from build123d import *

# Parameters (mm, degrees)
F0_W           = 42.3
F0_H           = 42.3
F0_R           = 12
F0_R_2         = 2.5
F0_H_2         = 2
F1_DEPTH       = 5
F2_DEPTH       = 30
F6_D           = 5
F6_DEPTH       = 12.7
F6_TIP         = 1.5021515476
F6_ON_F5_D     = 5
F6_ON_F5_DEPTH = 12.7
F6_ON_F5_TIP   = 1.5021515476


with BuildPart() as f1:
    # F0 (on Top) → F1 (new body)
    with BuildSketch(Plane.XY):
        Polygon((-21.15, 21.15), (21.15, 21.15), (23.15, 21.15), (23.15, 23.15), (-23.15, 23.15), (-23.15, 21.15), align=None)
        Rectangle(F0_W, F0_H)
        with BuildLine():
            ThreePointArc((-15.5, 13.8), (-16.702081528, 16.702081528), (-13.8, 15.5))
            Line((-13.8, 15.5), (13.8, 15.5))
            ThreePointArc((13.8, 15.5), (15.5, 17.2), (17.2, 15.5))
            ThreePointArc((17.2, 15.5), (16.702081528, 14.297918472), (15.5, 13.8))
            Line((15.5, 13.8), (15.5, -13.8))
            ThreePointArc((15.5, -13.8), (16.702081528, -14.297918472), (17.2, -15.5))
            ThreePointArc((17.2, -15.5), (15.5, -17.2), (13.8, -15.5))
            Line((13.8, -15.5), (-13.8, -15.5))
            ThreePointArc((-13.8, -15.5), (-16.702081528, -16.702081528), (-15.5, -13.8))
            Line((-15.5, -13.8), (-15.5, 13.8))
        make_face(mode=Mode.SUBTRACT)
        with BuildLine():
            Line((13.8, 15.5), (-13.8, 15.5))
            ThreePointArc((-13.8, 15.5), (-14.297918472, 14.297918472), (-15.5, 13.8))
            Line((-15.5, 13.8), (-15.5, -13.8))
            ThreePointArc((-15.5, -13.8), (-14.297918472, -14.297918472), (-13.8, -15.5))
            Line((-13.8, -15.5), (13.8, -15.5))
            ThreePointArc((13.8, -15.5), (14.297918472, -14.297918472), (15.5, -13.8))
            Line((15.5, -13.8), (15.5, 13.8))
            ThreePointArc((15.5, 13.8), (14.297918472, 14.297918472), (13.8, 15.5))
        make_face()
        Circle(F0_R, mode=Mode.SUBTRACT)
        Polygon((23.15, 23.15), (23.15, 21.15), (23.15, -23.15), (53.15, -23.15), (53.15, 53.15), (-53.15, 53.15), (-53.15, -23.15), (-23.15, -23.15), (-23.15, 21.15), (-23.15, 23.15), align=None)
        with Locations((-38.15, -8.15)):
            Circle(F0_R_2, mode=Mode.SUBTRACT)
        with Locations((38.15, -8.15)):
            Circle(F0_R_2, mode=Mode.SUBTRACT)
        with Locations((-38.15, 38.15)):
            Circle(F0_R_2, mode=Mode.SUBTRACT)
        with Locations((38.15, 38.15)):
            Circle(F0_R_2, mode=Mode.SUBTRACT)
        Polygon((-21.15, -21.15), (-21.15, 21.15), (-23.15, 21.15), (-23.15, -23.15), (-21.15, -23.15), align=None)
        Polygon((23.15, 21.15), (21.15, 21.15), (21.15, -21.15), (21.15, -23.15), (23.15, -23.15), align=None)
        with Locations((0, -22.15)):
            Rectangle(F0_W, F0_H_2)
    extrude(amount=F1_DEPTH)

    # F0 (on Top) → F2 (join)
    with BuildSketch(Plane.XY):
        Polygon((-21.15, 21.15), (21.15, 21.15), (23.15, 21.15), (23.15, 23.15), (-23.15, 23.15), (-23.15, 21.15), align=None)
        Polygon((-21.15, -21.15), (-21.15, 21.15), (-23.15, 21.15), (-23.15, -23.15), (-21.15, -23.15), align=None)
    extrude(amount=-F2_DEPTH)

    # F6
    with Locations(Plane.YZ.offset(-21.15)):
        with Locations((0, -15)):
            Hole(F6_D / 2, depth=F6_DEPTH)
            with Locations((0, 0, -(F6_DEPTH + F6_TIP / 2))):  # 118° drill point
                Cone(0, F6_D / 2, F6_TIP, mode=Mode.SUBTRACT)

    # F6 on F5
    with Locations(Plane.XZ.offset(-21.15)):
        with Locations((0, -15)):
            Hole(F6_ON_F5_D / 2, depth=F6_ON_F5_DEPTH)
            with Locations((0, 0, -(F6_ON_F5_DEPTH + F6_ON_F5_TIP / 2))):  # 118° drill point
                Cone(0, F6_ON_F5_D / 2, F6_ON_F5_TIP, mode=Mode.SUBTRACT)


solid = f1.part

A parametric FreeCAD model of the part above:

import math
import FreeCAD as App
import Part
import Sketcher


def add_polygon(sketch, points):
    """Adds a closed chain of lines whose ends are joined by coincident constraints."""
    first, n = sketch.GeometryCount, len(points)
    for a, b in zip(points, points[1:] + points[:1]):
        sketch.addGeometry(Part.LineSegment(App.Vector(*a, 0), App.Vector(*b, 0)), False)
    for i in range(n):
        sketch.addConstraint(Sketcher.Constraint("Coincident", first + i, 2, first + (i + 1) % n, 1))

doc = App.newDocument("Part")
body = doc.addObject("PartDesign::Body", "Body")

sketch1 = body.newObject("Sketcher::SketchObject", "Sketch")
sketch1.AttachmentSupport = (doc.getObject("XY_Plane"), [""])
sketch1.MapMode = "FlatFace"
add_polygon(sketch1, [(53.15, -23.15), (53.15, 53.15), (-53.15, 53.15), (-53.15, -23.15)])
sketch1.addGeometry(Part.Circle(App.Vector(-38.15, -8.15, 0), App.Vector(0, 0, 1), 2.5), False)
sketch1.addGeometry(Part.ArcOfCircle(Part.Circle(App.Vector(-15.5, -15.5, 0), App.Vector(0, 0, 1), 1.7), math.radians(90), math.radians(360)), False)
sketch1.addGeometry(Part.ArcOfCircle(Part.Circle(App.Vector(-15.5, -15.5, 0), App.Vector(0, 0, 1), 1.7), math.radians(0), math.radians(90)), False)
sketch1.addGeometry(Part.ArcOfCircle(Part.Circle(App.Vector(15.5, -15.5, 0), App.Vector(0, 0, 1), 1.7), math.radians(180), math.radians(360)), False)
sketch1.addGeometry(Part.ArcOfCircle(Part.Circle(App.Vector(15.5, -15.5, 0), App.Vector(0, 0, 1), 1.7), math.radians(90), math.radians(180)), False)
sketch1.addGeometry(Part.ArcOfCircle(Part.Circle(App.Vector(15.5, -15.5, 0), App.Vector(0, 0, 1), 1.7), math.radians(0), math.radians(90)), False)
sketch1.addGeometry(Part.Circle(App.Vector(38.15, -8.15, 0), App.Vector(0, 0, 1), 2.5), False)
sketch1.addGeometry(Part.Circle(App.Vector(0, 0, 0), App.Vector(0, 0, 1), 12), False)
sketch1.addGeometry(Part.ArcOfCircle(Part.Circle(App.Vector(-15.5, 15.5, 0), App.Vector(0, 0, 1), 1.7), math.radians(0), math.radians(270)), False)
sketch1.addGeometry(Part.ArcOfCircle(Part.Circle(App.Vector(-15.5, 15.5, 0), App.Vector(0, 0, 1), 1.7), math.radians(-90), math.radians(0)), False)
sketch1.addGeometry(Part.Circle(App.Vector(-38.15, 38.15, 0), App.Vector(0, 0, 1), 2.5), False)
sketch1.addGeometry(Part.ArcOfCircle(Part.Circle(App.Vector(15.5, 15.5, 0), App.Vector(0, 0, 1), 1.7), math.radians(-90), math.radians(0)), False)
sketch1.addGeometry(Part.ArcOfCircle(Part.Circle(App.Vector(15.5, 15.5, 0), App.Vector(0, 0, 1), 1.7), math.radians(180), math.radians(270)), False)
sketch1.addGeometry(Part.ArcOfCircle(Part.Circle(App.Vector(15.5, 15.5, 0), App.Vector(0, 0, 1), 1.7), math.radians(0), math.radians(180)), False)
sketch1.addGeometry(Part.Circle(App.Vector(38.15, 38.15, 0), App.Vector(0, 0, 1), 2.5), False)
sketch1.addConstraint([
    Sketcher.Constraint("Tangent", 5, 1, 6, 2),
    Sketcher.Constraint("Coincident", 6, 1, 5, 2),
    Sketcher.Constraint("Tangent", 7, 1, 8, 2),
    Sketcher.Constraint("Tangent", 8, 1, 9, 2),
    Sketcher.Constraint("Tangent", 9, 1, 7, 2),
    Sketcher.Constraint("Tangent", 12, 1, 13, 2),
    Sketcher.Constraint("Coincident", 13, 1, 12, 2),
    Sketcher.Constraint("Tangent", 15, 1, 16, 2),
    Sketcher.Constraint("Tangent", 16, 1, 17, 2),
    Sketcher.Constraint("Tangent", 17, 1, 15, 2),
    Sketcher.Constraint("Vertical", 0),
    Sketcher.Constraint("Horizontal", 1),
    Sketcher.Constraint("Vertical", 2),
    Sketcher.Constraint("Horizontal", 3),
    Sketcher.Constraint("Coincident", 11, 3, -1, 1),
    Sketcher.Constraint("Equal", 6, 7),
    Sketcher.Constraint("Equal", 4, 10),
    Sketcher.Constraint("Equal", 9, 12),
    Sketcher.Constraint("Equal", 10, 14),
    Sketcher.Constraint("Equal", 13, 15),
    Sketcher.Constraint("Equal", 14, 18),
    Sketcher.Constraint("Symmetric", 7, 3, 12, 3, -1, 1),
    Sketcher.Constraint("Symmetric", 5, 3, 15, 3, -1, 1),
    Sketcher.Constraint("Symmetric", 5, 3, 7, 3, -2),
    Sketcher.Constraint("Symmetric", 4, 3, 10, 3, -2),
    Sketcher.Constraint("Symmetric", 14, 3, 18, 3, -2),
    Sketcher.Constraint("Horizontal", 9, 3, 6, 1),
    Sketcher.Constraint("Horizontal", 6, 1, 7, 1),
    Sketcher.Constraint("Horizontal", 7, 1, 9, 1),
    Sketcher.Constraint("Horizontal", 17, 3, 12, 1),
    Sketcher.Constraint("Horizontal", 12, 1, 16, 1),
    Sketcher.Constraint("Horizontal", 16, 1, 17, 1),
    Sketcher.Constraint("Vertical", 4, 3, 14, 3),
    Sketcher.Constraint("Vertical", 13, 3, 5, 1),
    Sketcher.Constraint("Vertical", 17, 3, 8, 1),
    Sketcher.Constraint("Vertical", 5, 1, 13, 1),
    Sketcher.Constraint("Vertical", 8, 1, 15, 1),
    Sketcher.Constraint("Diameter", 4, 5.0),
    Sketcher.Constraint("Diameter", 11, 24.0),
    Sketcher.Constraint("Radius", 5, 1.7),
    Sketcher.Constraint("DistanceX", 1, 2, 1, 1, 106.3),
    Sketcher.Constraint("DistanceY", 0, 1, 0, 2, 76.3),
    Sketcher.Constraint("DistanceX", 5, 3, 7, 3, 31.0),
    Sketcher.Constraint("DistanceY", 5, 3, 12, 3, 31.0),
    Sketcher.Constraint("DistanceX", 18, 3, 0, 2, 15.0),
    Sketcher.Constraint("DistanceY", 18, 3, 0, 2, 15.0),
    Sketcher.Constraint("DistanceX", 1, 2, 14, 3, 15.0),
    Sketcher.Constraint("DistanceY", 2, 2, 4, 3, 15.0),
    Sketcher.Constraint("DistanceY", 4, 3, -1, 1, 8.15),
])
pad1 = body.newObject("PartDesign::Pad", "Pad")
pad1.Profile = sketch1
pad1.Length = 5

sketch2 = body.newObject("Sketcher::SketchObject", "Sketch001")
sketch2.AttachmentSupport = (doc.getObject("XY_Plane"), [""])
sketch2.MapMode = "FlatFace"
add_polygon(sketch2, [(23.15, 21.15), (23.15, 23.15), (-23.15, 23.15), (-23.15, -23.15), (-21.15, -23.15), (-21.15, 21.15)])
sketch2.addConstraint([
    Sketcher.Constraint("Vertical", 0),
    Sketcher.Constraint("Horizontal", 1),
    Sketcher.Constraint("Vertical", 2),
    Sketcher.Constraint("Horizontal", 3),
    Sketcher.Constraint("Vertical", 4),
    Sketcher.Constraint("Horizontal", 5),
    Sketcher.Constraint("Symmetric", 0, 2, 2, 2, -1, 1),
    Sketcher.Constraint("Equal", 3, 0),
    Sketcher.Constraint("Equal", 1, 2),
    Sketcher.Constraint("DistanceX", 3, 1, 3, 2, 2.0),
    Sketcher.Constraint("DistanceX", 1, 2, 1, 1, 46.3),
])
pad2 = body.newObject("PartDesign::Pad", "Pad001")
pad2.Profile = sketch2
pad2.Length = 30
pad2.Reversed = True

sketch3 = body.newObject("Sketcher::SketchObject", "Sketch002")
sketch3.AttachmentSupport = (doc.getObject("YZ_Plane"), [""])
sketch3.MapMode = "FlatFace"
sketch3.AttachmentOffset = App.Placement(App.Vector(0, 0, -21.15), App.Rotation())
sketch3.addGeometry(Part.Circle(App.Vector(0, -15, 0), App.Vector(0, 0, 1), 2.5), False)
sketch3.addConstraint([
    Sketcher.Constraint("PointOnObject", 0, 3, -2),
    Sketcher.Constraint("Diameter", 0, 5.0),
    Sketcher.Constraint("DistanceY", 0, 3, -1, 1, 15.0),
])
doc.recompute()
hole = body.newObject("PartDesign::Hole", "Hole")
hole.Profile = sketch3
hole.ThreadType = "None"
hole.Diameter = 5
hole.DepthType = "Dimension"
hole.Depth = 12.7
hole.DrillPoint = "Angled"
hole.DrillPointAngle = 118

sketch4 = body.newObject("Sketcher::SketchObject", "Sketch003")
sketch4.AttachmentSupport = (doc.getObject("XZ_Plane"), [""])
sketch4.MapMode = "FlatFace"
sketch4.AttachmentOffset = App.Placement(App.Vector(0, 0, -21.15), App.Rotation())
sketch4.addGeometry(Part.Circle(App.Vector(0, -15, 0), App.Vector(0, 0, 1), 2.5), False)
sketch4.addConstraint([
    Sketcher.Constraint("PointOnObject", 0, 3, -2),
    Sketcher.Constraint("Diameter", 0, 5.0),
    Sketcher.Constraint("DistanceY", 0, 3, -1, 1, 15.0),
])
doc.recompute()
hole2 = body.newObject("PartDesign::Hole", "Hole001")
hole2.Profile = sketch4
hole2.ThreadType = "None"
hole2.Diameter = 5
hole2.DepthType = "Dimension"
hole2.Depth = 12.7
hole2.DrillPoint = "Angled"
hole2.DrillPointAngle = 118

doc.recompute()
